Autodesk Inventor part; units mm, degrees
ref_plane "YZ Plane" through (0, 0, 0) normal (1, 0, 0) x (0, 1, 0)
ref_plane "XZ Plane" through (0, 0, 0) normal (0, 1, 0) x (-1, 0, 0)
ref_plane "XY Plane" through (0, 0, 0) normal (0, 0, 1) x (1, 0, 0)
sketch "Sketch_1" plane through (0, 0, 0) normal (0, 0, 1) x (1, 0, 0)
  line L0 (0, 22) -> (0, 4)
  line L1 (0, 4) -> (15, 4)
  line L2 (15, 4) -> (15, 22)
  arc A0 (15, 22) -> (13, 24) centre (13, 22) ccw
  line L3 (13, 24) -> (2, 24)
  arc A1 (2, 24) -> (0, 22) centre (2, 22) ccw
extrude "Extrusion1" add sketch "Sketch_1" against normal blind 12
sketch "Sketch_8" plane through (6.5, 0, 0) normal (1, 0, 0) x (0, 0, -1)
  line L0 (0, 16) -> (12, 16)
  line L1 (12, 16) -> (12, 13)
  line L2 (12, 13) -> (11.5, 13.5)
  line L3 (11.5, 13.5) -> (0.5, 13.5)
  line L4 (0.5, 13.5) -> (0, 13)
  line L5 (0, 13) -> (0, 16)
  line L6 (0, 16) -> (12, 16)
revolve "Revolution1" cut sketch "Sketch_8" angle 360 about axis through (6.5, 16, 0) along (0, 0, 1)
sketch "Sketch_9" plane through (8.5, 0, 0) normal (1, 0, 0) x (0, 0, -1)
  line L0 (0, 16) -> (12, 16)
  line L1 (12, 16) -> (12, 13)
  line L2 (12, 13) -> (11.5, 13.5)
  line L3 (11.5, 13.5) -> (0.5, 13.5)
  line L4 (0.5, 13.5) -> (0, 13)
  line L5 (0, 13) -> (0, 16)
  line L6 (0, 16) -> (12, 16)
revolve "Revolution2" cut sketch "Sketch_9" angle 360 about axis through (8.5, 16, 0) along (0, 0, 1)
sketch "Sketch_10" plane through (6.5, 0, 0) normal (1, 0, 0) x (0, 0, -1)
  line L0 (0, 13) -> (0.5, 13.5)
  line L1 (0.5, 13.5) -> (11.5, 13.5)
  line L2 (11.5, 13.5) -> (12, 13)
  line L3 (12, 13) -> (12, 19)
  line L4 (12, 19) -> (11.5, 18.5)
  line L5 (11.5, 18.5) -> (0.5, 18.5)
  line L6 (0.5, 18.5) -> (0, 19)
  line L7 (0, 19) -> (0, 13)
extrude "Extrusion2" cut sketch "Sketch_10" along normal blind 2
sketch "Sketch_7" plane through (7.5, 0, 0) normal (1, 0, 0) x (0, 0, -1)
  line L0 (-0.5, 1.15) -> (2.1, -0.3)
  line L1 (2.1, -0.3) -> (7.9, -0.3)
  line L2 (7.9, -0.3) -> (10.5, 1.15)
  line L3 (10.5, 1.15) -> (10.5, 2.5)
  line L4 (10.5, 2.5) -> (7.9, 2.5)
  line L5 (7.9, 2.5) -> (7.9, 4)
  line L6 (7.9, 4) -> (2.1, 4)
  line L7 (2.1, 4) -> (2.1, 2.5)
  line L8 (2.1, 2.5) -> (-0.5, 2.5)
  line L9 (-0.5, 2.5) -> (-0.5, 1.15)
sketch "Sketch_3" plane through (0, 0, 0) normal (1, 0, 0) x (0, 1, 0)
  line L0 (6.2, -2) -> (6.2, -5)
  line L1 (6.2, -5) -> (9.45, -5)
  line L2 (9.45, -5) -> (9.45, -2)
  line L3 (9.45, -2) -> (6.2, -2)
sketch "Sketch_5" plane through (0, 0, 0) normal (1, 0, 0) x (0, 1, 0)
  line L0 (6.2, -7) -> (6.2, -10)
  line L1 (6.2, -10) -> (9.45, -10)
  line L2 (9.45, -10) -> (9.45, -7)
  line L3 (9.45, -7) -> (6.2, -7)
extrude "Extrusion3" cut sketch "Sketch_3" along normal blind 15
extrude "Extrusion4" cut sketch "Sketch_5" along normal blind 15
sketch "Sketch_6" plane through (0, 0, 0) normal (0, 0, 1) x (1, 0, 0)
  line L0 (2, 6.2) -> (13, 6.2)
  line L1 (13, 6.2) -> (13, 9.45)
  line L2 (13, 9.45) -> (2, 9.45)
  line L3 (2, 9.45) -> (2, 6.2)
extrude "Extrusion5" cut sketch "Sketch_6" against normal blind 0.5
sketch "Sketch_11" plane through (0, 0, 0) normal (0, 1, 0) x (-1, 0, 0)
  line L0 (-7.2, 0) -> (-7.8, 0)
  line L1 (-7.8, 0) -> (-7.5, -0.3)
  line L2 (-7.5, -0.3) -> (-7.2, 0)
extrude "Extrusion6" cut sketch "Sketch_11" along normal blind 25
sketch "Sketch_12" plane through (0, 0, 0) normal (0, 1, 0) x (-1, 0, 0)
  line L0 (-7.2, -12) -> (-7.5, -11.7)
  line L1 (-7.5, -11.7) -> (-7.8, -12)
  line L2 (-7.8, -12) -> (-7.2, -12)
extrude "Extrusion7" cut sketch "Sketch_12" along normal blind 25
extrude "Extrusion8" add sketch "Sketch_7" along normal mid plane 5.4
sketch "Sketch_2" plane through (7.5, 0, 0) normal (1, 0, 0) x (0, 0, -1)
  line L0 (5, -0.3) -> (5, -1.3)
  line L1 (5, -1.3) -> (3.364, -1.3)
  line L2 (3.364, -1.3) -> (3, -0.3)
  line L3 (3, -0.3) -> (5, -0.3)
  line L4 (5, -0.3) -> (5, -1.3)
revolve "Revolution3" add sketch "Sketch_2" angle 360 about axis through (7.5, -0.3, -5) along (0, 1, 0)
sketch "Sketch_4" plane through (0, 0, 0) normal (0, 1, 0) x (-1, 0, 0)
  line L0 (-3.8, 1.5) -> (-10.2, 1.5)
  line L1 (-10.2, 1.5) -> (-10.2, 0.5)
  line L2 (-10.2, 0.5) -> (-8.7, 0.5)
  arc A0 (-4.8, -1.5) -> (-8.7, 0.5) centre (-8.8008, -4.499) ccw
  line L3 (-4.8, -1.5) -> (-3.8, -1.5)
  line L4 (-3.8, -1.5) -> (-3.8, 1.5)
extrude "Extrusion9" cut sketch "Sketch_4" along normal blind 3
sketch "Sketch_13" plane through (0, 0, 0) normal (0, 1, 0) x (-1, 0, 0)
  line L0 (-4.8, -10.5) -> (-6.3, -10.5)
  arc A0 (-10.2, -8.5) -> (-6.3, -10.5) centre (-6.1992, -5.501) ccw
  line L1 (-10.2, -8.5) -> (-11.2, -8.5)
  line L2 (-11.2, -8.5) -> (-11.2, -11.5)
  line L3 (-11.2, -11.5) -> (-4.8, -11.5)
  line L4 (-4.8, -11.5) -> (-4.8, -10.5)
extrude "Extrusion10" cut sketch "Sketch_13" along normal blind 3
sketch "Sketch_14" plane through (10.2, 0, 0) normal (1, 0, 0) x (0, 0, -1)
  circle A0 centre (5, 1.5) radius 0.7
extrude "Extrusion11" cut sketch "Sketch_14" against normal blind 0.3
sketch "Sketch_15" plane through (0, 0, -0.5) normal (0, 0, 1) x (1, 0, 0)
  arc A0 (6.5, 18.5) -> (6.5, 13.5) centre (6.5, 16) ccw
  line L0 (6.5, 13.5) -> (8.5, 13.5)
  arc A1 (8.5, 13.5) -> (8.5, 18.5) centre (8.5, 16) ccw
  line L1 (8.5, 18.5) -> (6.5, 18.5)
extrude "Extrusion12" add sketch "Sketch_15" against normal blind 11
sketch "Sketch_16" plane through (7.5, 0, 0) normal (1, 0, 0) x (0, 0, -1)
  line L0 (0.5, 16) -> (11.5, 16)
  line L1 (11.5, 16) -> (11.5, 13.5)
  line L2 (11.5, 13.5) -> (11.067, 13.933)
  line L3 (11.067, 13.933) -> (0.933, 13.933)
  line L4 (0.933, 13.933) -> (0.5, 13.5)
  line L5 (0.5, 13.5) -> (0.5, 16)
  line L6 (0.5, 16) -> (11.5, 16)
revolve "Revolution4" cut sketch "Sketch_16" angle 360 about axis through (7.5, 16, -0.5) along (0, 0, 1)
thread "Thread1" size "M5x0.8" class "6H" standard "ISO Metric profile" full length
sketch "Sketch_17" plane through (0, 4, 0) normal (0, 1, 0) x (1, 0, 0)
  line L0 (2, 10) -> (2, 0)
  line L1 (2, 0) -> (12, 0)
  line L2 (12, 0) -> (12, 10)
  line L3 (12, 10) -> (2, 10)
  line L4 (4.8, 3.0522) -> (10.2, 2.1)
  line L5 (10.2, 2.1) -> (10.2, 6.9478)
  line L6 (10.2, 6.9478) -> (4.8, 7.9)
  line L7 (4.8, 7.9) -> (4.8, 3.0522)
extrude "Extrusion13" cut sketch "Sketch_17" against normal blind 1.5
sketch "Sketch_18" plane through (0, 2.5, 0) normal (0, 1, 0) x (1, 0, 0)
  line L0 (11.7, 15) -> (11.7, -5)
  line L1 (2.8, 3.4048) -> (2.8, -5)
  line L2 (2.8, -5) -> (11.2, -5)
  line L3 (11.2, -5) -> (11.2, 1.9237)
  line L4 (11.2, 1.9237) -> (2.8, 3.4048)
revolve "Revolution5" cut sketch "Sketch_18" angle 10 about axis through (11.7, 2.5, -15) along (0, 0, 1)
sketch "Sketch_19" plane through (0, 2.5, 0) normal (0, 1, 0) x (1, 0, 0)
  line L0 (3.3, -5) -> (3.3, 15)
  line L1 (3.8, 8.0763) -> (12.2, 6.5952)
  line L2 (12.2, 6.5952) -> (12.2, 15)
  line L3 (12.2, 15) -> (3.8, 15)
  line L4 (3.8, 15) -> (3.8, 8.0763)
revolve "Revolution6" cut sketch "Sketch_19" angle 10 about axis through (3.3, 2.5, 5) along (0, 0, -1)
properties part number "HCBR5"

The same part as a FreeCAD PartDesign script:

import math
import FreeCAD as App
import Part
import Sketcher
Q = App.Units.Quantity


def add_polygon(sketch, points):
    """Adds a closed chain of lines whose ends are joined by coincident constraints."""
    first, n = sketch.GeometryCount, len(points)
    for a, b in zip(points, points[1:] + points[:1]):
        sketch.addGeometry(Part.LineSegment(App.Vector(*a, 0), App.Vector(*b, 0)), False)
    for i in range(n):
        sketch.addConstraint(Sketcher.Constraint("Coincident", first + i, 2, first + (i + 1) % n, 1))

doc = App.newDocument("Part")
body = doc.addObject("PartDesign::Body", "Body")

sketch1 = body.newObject("Sketcher::SketchObject", "Sketch")
sketch1.AttachmentSupport = (doc.getObject("XY_Plane"), [""])
sketch1.MapMode = "FlatFace"
sketch1.addGeometry(Part.ArcOfCircle(Part.Circle(App.Vector(2, 22, 0), App.Vector(0, 0, 1), 2), math.radians(90), math.radians(180)), False)
sketch1.addGeometry(Part.LineSegment(App.Vector(0, 22, 0), App.Vector(0, 4, 0)), False)
sketch1.addGeometry(Part.LineSegment(App.Vector(0, 4, 0), App.Vector(15, 4, 0)), False)
sketch1.addGeometry(Part.LineSegment(App.Vector(15, 4, 0), App.Vector(15, 22, 0)), False)
sketch1.addGeometry(Part.ArcOfCircle(Part.Circle(App.Vector(13, 22, 0), App.Vector(0, 0, 1), 2), math.radians(0), math.radians(90)), False)
sketch1.addGeometry(Part.LineSegment(App.Vector(13, 24, 0), App.Vector(2, 24, 0)), False)
sketch1.addConstraint(Sketcher.Constraint("Tangent", 0, 2, 1, 1))
sketch1.addConstraint(Sketcher.Constraint("Coincident", 1, 2, 2, 1))
sketch1.addConstraint(Sketcher.Constraint("Coincident", 2, 2, 3, 1))
sketch1.addConstraint(Sketcher.Constraint("Tangent", 3, 2, 4, 1))
sketch1.addConstraint(Sketcher.Constraint("Tangent", 4, 2, 5, 1))
sketch1.addConstraint(Sketcher.Constraint("Tangent", 5, 2, 0, 1))
sketch1.addConstraint(Sketcher.Constraint("Vertical", 1))
sketch1.addConstraint(Sketcher.Constraint("Horizontal", 2))
sketch1.addConstraint(Sketcher.Constraint("Vertical", 3))
sketch1.addConstraint(Sketcher.Constraint("Horizontal", 5))
sketch1.addConstraint(Sketcher.Constraint("Equal", 0, 4))
sketch1.addConstraint(Sketcher.Constraint("PointOnObject", 0, 2, -2))
sketch1.addConstraint(Sketcher.Constraint("Radius", 0, Q("2 mm")))
sketch1.addConstraint(Sketcher.Constraint("DistanceX", 2, 1, 2, 2, Q("15 mm")))
sketch1.addConstraint(Sketcher.Constraint("DistanceY", 1, 2, 1, 1, Q("18 mm")))
sketch1.addConstraint(Sketcher.Constraint("DistanceY", -1, 1, 0, 3, Q("22 mm")))
pad1 = body.newObject("PartDesign::Pad", "Pad")
pad1.Profile = sketch1
pad1.Length = 12
pad1.Reversed = True

sketch2 = body.newObject("Sketcher::SketchObject", "Sketch001")
sketch2.AttachmentSupport = (doc.getObject("YZ_Plane"), [""])
sketch2.MapMode = "FlatFace"
sketch2.AttachmentOffset = App.Placement(App.Vector(0, 0, 6.5), App.Rotation())
add_polygon(sketch2, [(16, -12), (16, 0), (13, 0), (13.5, -0.5), (13.5, -11.5), (13, -12)])
sketch2.addGeometry(Part.LineSegment(App.Vector(16, -12, 0), App.Vector(16, 0, 0)), True)
sketch2.addConstraint(Sketcher.Constraint("Vertical", 0))
sketch2.addConstraint(Sketcher.Constraint("Horizontal", 1))
sketch2.addConstraint(Sketcher.Constraint("Vertical", 3))
sketch2.addConstraint(Sketcher.Constraint("Horizontal", 5))
sketch2.addConstraint(Sketcher.Constraint("Vertical", 6))
sketch2.addConstraint(Sketcher.Constraint("Coincident", 6, 1, 5, 2))
sketch2.addConstraint(Sketcher.Constraint("PointOnObject", 0, 2, -1))
sketch2.addConstraint(Sketcher.Constraint("PointOnObject", 6, 2, -1))
sketch2.addConstraint(Sketcher.Constraint("Perpendicular", 2, 4))
sketch2.addConstraint(Sketcher.Constraint("Vertical", 1, 2, 4, 2))
sketch2.addConstraint(Sketcher.Constraint("Equal", 2, 4))
sketch2.addConstraint(Sketcher.Constraint("DistanceX", 1, 2, 1, 1, Q("3 mm")))
sketch2.addConstraint(Sketcher.Constraint("DistanceY", 0, 1, 0, 2, Q("12 mm")))
sketch2.addConstraint(Sketcher.Constraint("DistanceY", 3, 2, 3, 1, Q("11 mm")))
sketch2.addConstraint(Sketcher.Constraint("DistanceX", -1, 1, 0, 2, Q("16 mm")))
groove = body.newObject("PartDesign::Groove", "Groove")
groove.Profile = sketch2
groove.ReferenceAxis = (sketch2, ["Axis0"])
groove.Angle = 360

sketch3 = body.newObject("Sketcher::SketchObject", "Sketch002")
sketch3.AttachmentSupport = (doc.getObject("YZ_Plane"), [""])
sketch3.MapMode = "FlatFace"
sketch3.AttachmentOffset = App.Placement(App.Vector(0, 0, 8.5), App.Rotation())
add_polygon(sketch3, [(16, -12), (16, 0), (13, 0), (13.5, -0.5), (13.5, -11.5), (13, -12)])
sketch3.addGeometry(Part.LineSegment(App.Vector(16, -12, 0), App.Vector(16, 0, 0)), True)
sketch3.addConstraint(Sketcher.Constraint("Vertical", 0))
sketch3.addConstraint(Sketcher.Constraint("Horizontal", 1))
sketch3.addConstraint(Sketcher.Constraint("Vertical", 3))
sketch3.addConstraint(Sketcher.Constraint("Horizontal", 5))
sketch3.addConstraint(Sketcher.Constraint("Vertical", 6))
sketch3.addConstraint(Sketcher.Constraint("Coincident", 6, 1, 5, 2))
sketch3.addConstraint(Sketcher.Constraint("PointOnObject", 0, 2, -1))
sketch3.addConstraint(Sketcher.Constraint("PointOnObject", 6, 2, -1))
sketch3.addConstraint(Sketcher.Constraint("Perpendicular", 2, 4))
sketch3.addConstraint(Sketcher.Constraint("Vertical", 1, 2, 4, 2))
sketch3.addConstraint(Sketcher.Constraint("Equal", 2, 4))
sketch3.addConstraint(Sketcher.Constraint("DistanceX", 1, 2, 1, 1, Q("3 mm")))
sketch3.addConstraint(Sketcher.Constraint("DistanceY", 0, 1, 0, 2, Q("12 mm")))
sketch3.addConstraint(Sketcher.Constraint("DistanceY", 3, 2, 3, 1, Q("11 mm")))
sketch3.addConstraint(Sketcher.Constraint("DistanceX", -1, 1, 0, 2, Q("16 mm")))
groove2 = body.newObject("PartDesign::Groove", "Groove001")
groove2.Profile = sketch3
groove2.ReferenceAxis = (sketch3, ["Axis0"])
groove2.Angle = 360

sketch4 = body.newObject("Sketcher::SketchObject", "Sketch003")
sketch4.AttachmentSupport = (doc.getObject("YZ_Plane"), [""])
sketch4.MapMode = "FlatFace"
sketch4.AttachmentOffset = App.Placement(App.Vector(0, 0, 6.5), App.Rotation())
add_polygon(sketch4, [(19, 0), (13, 0), (13.5, -0.5), (13.5, -11.5), (13, -12), (19, -12), (18.5, -11.5), (18.5, -0.5)])
sketch4.addConstraint(Sketcher.Constraint("Horizontal", 0))
sketch4.addConstraint(Sketcher.Constraint("Vertical", 2))
sketch4.addConstraint(Sketcher.Constraint("Horizontal", 4))
sketch4.addConstraint(Sketcher.Constraint("Vertical", 6))
sketch4.addConstraint(Sketcher.Constraint("PointOnObject", 0, 2, -1))
sketch4.addConstraint(Sketcher.Constraint("Perpendicular", 1, 3))
sketch4.addConstraint(Sketcher.Constraint("Perpendicular", 3, 5))
sketch4.addConstraint(Sketcher.Constraint("Perpendicular", 5, 7))
sketch4.addConstraint(Sketcher.Constraint("Horizontal", 2, 2, 5, 2))
sketch4.addConstraint(Sketcher.Constraint("Horizontal", 1, 2, 6, 2))
sketch4.addConstraint(Sketcher.Constraint("Vertical", 0, 2, 3, 2))
sketch4.addConstraint(Sketcher.Constraint("Vertical", 4, 2, 7, 2))
sketch4.addConstraint(Sketcher.Constraint("DistanceX", 0, 2, 0, 1, Q("6 mm")))
sketch4.addConstraint(Sketcher.Constraint("DistanceY", 2, 2, 2, 1, Q("11 mm")))
sketch4.addConstraint(Sketcher.Constraint("DistanceX", -1, 1, 0, 2, Q("13 mm")))
sketch4.addConstraint(Sketcher.Constraint("DistanceY", 3, 2, -1, 1, Q("12 mm")))
pocket1 = body.newObject("PartDesign::Pocket", "Pocket")
pocket1.Profile = sketch4
pocket1.Length = 2
pocket1.Reversed = True

sketch5 = body.newObject("Sketcher::SketchObject", "Sketch004")
sketch5.AttachmentSupport = (doc.getObject("YZ_Plane"), [""])
sketch5.MapMode = "FlatFace"
add_polygon(sketch5, [(9.4, -2), (6.2, -2), (6.2, -5), (9.4, -5)])
sketch5.addConstraint(Sketcher.Constraint("Horizontal", 0))
sketch5.addConstraint(Sketcher.Constraint("Vertical", 1))
sketch5.addConstraint(Sketcher.Constraint("Horizontal", 2))
sketch5.addConstraint(Sketcher.Constraint("Vertical", 3))
sketch5.addConstraint(Sketcher.Constraint("DistanceY", 1, 2, 1, 1, Q("3 mm")))
sketch5.addConstraint(Sketcher.Constraint("DistanceY", 0, 2, -1, 1, Q("2 mm")))
sketch5.addConstraint(Sketcher.Constraint("DistanceX", 0, 2, 0, 1, Q("3.25 mm")))
sketch5.addConstraint(Sketcher.Constraint("DistanceX", -1, 1, 0, 2, Q("6.2 mm")))
pocket2 = body.newObject("PartDesign::Pocket", "Pocket001")
pocket2.Profile = sketch5
pocket2.Length = 15
pocket2.Reversed = True

sketch6 = body.newObject("Sketcher::SketchObject", "Sketch005")
sketch6.AttachmentSupport = (doc.getObject("YZ_Plane"), [""])
sketch6.MapMode = "FlatFace"
add_polygon(sketch6, [(9.4, -7), (6.2, -7), (6.2, -10), (9.4, -10)])
sketch6.addConstraint(Sketcher.Constraint("Horizontal", 0))
sketch6.addConstraint(Sketcher.Constraint("Vertical", 1))
sketch6.addConstraint(Sketcher.Constraint("Horizontal", 2))
sketch6.addConstraint(Sketcher.Constraint("Vertical", 3))
sketch6.addConstraint(Sketcher.Constraint("DistanceY", 1, 2, 1, 1, Q("3 mm")))
sketch6.addConstraint(Sketcher.Constraint("DistanceY", 0, 2, -1, 1, Q("7 mm")))
sketch6.addConstraint(Sketcher.Constraint("DistanceX", 0, 2, 0, 1, Q("3.25 mm")))
sketch6.addConstraint(Sketcher.Constraint("DistanceX", -1, 1, 0, 2, Q("6.2 mm")))
pocket3 = body.newObject("PartDesign::Pocket", "Pocket002")
pocket3.Profile = sketch6
pocket3.Length = 15
pocket3.Reversed = True

sketch7 = body.newObject("Sketcher::SketchObject", "Sketch006")
sketch7.AttachmentSupport = (doc.getObject("XY_Plane"), [""])
sketch7.MapMode = "FlatFace"
add_polygon(sketch7, [(2, 9.4), (2, 6.2), (13, 6.2), (13, 9.4)])
sketch7.addConstraint(Sketcher.Constraint("Vertical", 0))
sketch7.addConstraint(Sketcher.Constraint("Horizontal", 1))
sketch7.addConstraint(Sketcher.Constraint("Vertical", 2))
sketch7.addConstraint(Sketcher.Constraint("Horizontal", 3))
sketch7.addConstraint(Sketcher.Constraint("DistanceX", 1, 1, 1, 2, Q("11 mm")))
sketch7.addConstraint(Sketcher.Constraint("DistanceX", -1, 1, 0, 2, Q("2 mm")))
sketch7.addConstraint(Sketcher.Constraint("DistanceY", 0, 2, 0, 1, Q("3.25 mm")))
sketch7.addConstraint(Sketcher.Constraint("DistanceY", -1, 1, 0, 2, Q("6.2 mm")))
pocket4 = body.newObject("PartDesign::Pocket", "Pocket003")
pocket4.Profile = sketch7
pocket4.Length = 0.5

sketch8 = body.newObject("Sketcher::SketchObject", "Sketch007")
sketch8.AttachmentSupport = (doc.getObject("XZ_Plane"), [""])
sketch8.MapMode = "FlatFace"
add_polygon(sketch8, [(7.5, -0.3), (7.2, 0), (7.8, 0)])
sketch8.addConstraint(Sketcher.Constraint("Horizontal", 1))
sketch8.addConstraint(Sketcher.Constraint("PointOnObject", 0, 2, -1))
sketch8.addConstraint(Sketcher.Constraint("Perpendicular", 0, 2))
sketch8.addConstraint(Sketcher.Constraint("Equal", 0, 2))
sketch8.addConstraint(Sketcher.Constraint("DistanceX", 1, 1, 1, 2, Q("0.6 mm")))
sketch8.addConstraint(Sketcher.Constraint("DistanceX", -1, 1, 0, 2, Q("7.2 mm")))
pocket5 = body.newObject("PartDesign::Pocket", "Pocket004")
pocket5.Profile = sketch8
pocket5.Length = 25

sketch9 = body.newObject("Sketcher::SketchObject", "Sketch008")
sketch9.AttachmentSupport = (doc.getObject("XZ_Plane"), [""])
sketch9.MapMode = "FlatFace"
add_polygon(sketch9, [(7.8, -12), (7.2, -12), (7.5, -11.7)])
sketch9.addConstraint(Sketcher.Constraint("Horizontal", 0))
sketch9.addConstraint(Sketcher.Constraint("Perpendicular", 1, 2))
sketch9.addConstraint(Sketcher.Constraint("Equal", 1, 2))
sketch9.addConstraint(Sketcher.Constraint("DistanceX", 0, 2, 0, 1, Q("0.6 mm")))
sketch9.addConstraint(Sketcher.Constraint("DistanceY", 0, 2, -1, 1, Q("12 mm")))
sketch9.addConstraint(Sketcher.Constraint("DistanceX", -1, 1, 0, 2, Q("7.2 mm")))
pocket6 = body.newObject("PartDesign::Pocket", "Pocket005")
pocket6.Profile = sketch9
pocket6.Length = 25

sketch10 = body.newObject("Sketcher::SketchObject", "Sketch009")
sketch10.AttachmentSupport = (doc.getObject("YZ_Plane"), [""])
sketch10.MapMode = "FlatFace"
sketch10.AttachmentOffset = App.Placement(App.Vector(0, 0, 7.5), App.Rotation())
add_polygon(sketch10, [(2.5, 0.5), (1.1, 0.5), (-0.3, -2.1), (-0.3, -7.9), (1.1, -10.5), (2.5, -10.5), (2.5, -7.9), (4, -7.9), (4, -2.1), (2.5, -2.1)])
sketch10.addConstraint(Sketcher.Constraint("Horizontal", 0))
sketch10.addConstraint(Sketcher.Constraint("Vertical", 2))
sketch10.addConstraint(Sketcher.Constraint("Horizontal", 4))
sketch10.addConstraint(Sketcher.Constraint("Vertical", 5))
sketch10.addConstraint(Sketcher.Constraint("Horizontal", 6))
sketch10.addConstraint(Sketcher.Constraint("Vertical", 7))
sketch10.addConstraint(Sketcher.Constraint("Horizontal", 8))
sketch10.addConstraint(Sketcher.Constraint("Vertical", 9))
sketch10.addConstraint(Sketcher.Constraint("Horizontal", 2, 2, 5, 2))
sketch10.addConstraint(Sketcher.Constraint("Horizontal", 1, 2, 7, 2))
sketch10.addConstraint(Sketcher.Constraint("Vertical", 0, 2, 3, 2))
sketch10.addConstraint(Sketcher.Constraint("Vertical", 5, 2, 8, 2))
sketch10.addConstraint(Sketcher.Constraint("Equal", 5, 9))
sketch10.addConstraint(Sketcher.Constraint("DistanceX", 6, 1, 6, 2, Q("1.5 mm")))
sketch10.addConstraint(Sketcher.Constraint("DistanceY", 2, 2, 2, 1, Q("5.8 mm")))
sketch10.addConstraint(Sketcher.Constraint("DistanceY", 5, 1, 5, 2, Q("2.6 mm")))
sketch10.addConstraint(Sketcher.Constraint("DistanceX", -1, 1, 6, 2, Q("4 mm")))
sketch10.addConstraint(Sketcher.Constraint("DistanceX", 0, 2, 0, 1, Q("1.35 mm")))
sketch10.addConstraint(Sketcher.Constraint("DistanceY", -1, 1, 0, 2, Q("0.5 mm")))
sketch10.addConstraint(Sketcher.Constraint("DistanceX", 1, 2, -1, 1, Q("0.3 mm")))
pad2 = body.newObject("PartDesign::Pad", "Pad001")
pad2.Profile = sketch10
pad2.Length = 5.4
pad2.Midplane = True

sketch11 = body.newObject("Sketcher::SketchObject", "Sketch010")
sketch11.AttachmentSupport = (doc.getObject("YZ_Plane"), [""])
sketch11.MapMode = "FlatFace"
sketch11.AttachmentOffset = App.Placement(App.Vector(0, 0, 7.5), App.Rotation())
add_polygon(sketch11, [(-1.3, -5), (-0.3, -5), (-0.3, -3), (-1.3, -3.4)])
sketch11.addGeometry(Part.LineSegment(App.Vector(-1.3, -5, 0), App.Vector(-0.3, -5, 0)), True)
sketch11.addConstraint(Sketcher.Constraint("Horizontal", 0))
sketch11.addConstraint(Sketcher.Constraint("Vertical", 1))
sketch11.addConstraint(Sketcher.Constraint("Vertical", 3))
sketch11.addConstraint(Sketcher.Constraint("Horizontal", 4))
sketch11.addConstraint(Sketcher.Constraint("Coincident", 4, 1, 3, 2))
sketch11.addConstraint(Sketcher.Constraint("Vertical", 1, 2, 4, 2))
sketch11.addConstraint(Sketcher.Constraint("DistanceX", 0, 1, 0, 2, Q("1 mm")))
sketch11.addConstraint(Sketcher.Constraint("DistanceY", 1, 1, 1, 2, Q("2 mm")))
sketch11.addConstraint(Sketcher.Constraint("DistanceY", 0, 2, -1, 1, Q("5 mm")))
sketch11.addConstraint(Sketcher.Constraint("DistanceX", 0, 2, -1, 1, Q("0.3 mm")))
sketch11.addConstraint(Sketcher.Constraint("DistanceY", 3, 2, 3, 1, Q("1.636 mm")))
revolution = body.newObject("PartDesign::Revolution", "Revolution")
revolution.Profile = sketch11
revolution.ReferenceAxis = (sketch11, ["Axis0"])
revolution.Angle = 360

sketch12 = body.newObject("Sketcher::SketchObject", "Sketch011")
sketch12.AttachmentSupport = (doc.getObject("XZ_Plane"), [""])
sketch12.MapMode = "FlatFace"
sketch12.addGeometry(Part.LineSegment(App.Vector(3.8, -1.5, 0), App.Vector(3.8, 1.5, 0)), False)
sketch12.addGeometry(Part.LineSegment(App.Vector(3.8, 1.5, 0), App.Vector(10.2, 1.5, 0)), False)
sketch12.addGeometry(Part.LineSegment(App.Vector(10.2, 1.5, 0), App.Vector(10.2, 0.5, 0)), False)
sketch12.addGeometry(Part.LineSegment(App.Vector(10.2, 0.5, 0), App.Vector(8.7, 0.5, 0)), False)
sketch12.addGeometry(Part.ArcOfCircle(Part.Circle(App.Vector(8.8, -4.5, 0), App.Vector(0, 0, 1), 5), math.radians(91), math.radians(143)), False)
sketch12.addGeometry(Part.LineSegment(App.Vector(4.8, -1.5, 0), App.Vector(3.8, -1.5, 0)), False)
sketch12.addConstraint(Sketcher.Constraint("Coincident", 0, 2, 1, 1))
sketch12.addConstraint(Sketcher.Constraint("Coincident", 1, 2, 2, 1))
sketch12.addConstraint(Sketcher.Constraint("Coincident", 2, 2, 3, 1))
sketch12.addConstraint(Sketcher.Constraint("Coincident", 3, 2, 4, 1))
sketch12.addConstraint(Sketcher.Constraint("Coincident", 4, 2, 5, 1))
sketch12.addConstraint(Sketcher.Constraint("Coincident", 5, 2, 0, 1))
sketch12.addConstraint(Sketcher.Constraint("Vertical", 0))
sketch12.addConstraint(Sketcher.Constraint("Horizontal", 1))
sketch12.addConstraint(Sketcher.Constraint("Vertical", 2))
sketch12.addConstraint(Sketcher.Constraint("Horizontal", 3))
sketch12.addConstraint(Sketcher.Constraint("Horizontal", 5))
sketch12.addConstraint(Sketcher.Constraint("Equal", 5, 2))
sketch12.addConstraint(Sketcher.Constraint("Radius", 4, Q("5 mm")))
sketch12.addConstraint(Sketcher.Constraint("DistanceX", 5, 2, 5, 1, Q("1 mm")))
sketch12.addConstraint(Sketcher.Constraint("DistanceY", 0, 1, 0, 2, Q("3 mm")))
sketch12.addConstraint(Sketcher.Constraint("DistanceX", 1, 1, 1, 2, Q("6.4 mm")))
sketch12.addConstraint(Sketcher.Constraint("DistanceX", 3, 2, 3, 1, Q("1.5 mm")))
sketch12.addConstraint(Sketcher.Constraint("DistanceX", -1, 1, 0, 2, Q("3.8 mm")))
sketch12.addConstraint(Sketcher.Constraint("DistanceY", -1, 1, 0, 2, Q("1.5 mm")))
pocket7 = body.newObject("PartDesign::Pocket", "Pocket006")
pocket7.Profile = sketch12
pocket7.Length = 3

sketch13 = body.newObject("Sketcher::SketchObject", "Sketch012")
sketch13.AttachmentSupport = (doc.getObject("XZ_Plane"), [""])
sketch13.MapMode = "FlatFace"
sketch13.addGeometry(Part.LineSegment(App.Vector(4.8, -11.5, 0), App.Vector(4.8, -10.5, 0)), False)
sketch13.addGeometry(Part.LineSegment(App.Vector(4.8, -10.5, 0), App.Vector(6.3, -10.5, 0)), False)
sketch13.addGeometry(Part.ArcOfCircle(Part.Circle(App.Vector(6.2, -5.5, 0), App.Vector(0, 0, 1), 5), math.radians(-89), math.radians(-37)), False)
sketch13.addGeometry(Part.LineSegment(App.Vector(10.2, -8.5, 0), App.Vector(11.2, -8.5, 0)), False)
sketch13.addGeometry(Part.LineSegment(App.Vector(11.2, -8.5, 0), App.Vector(11.2, -11.5, 0)), False)
sketch13.addGeometry(Part.LineSegment(App.Vector(11.2, -11.5, 0), App.Vector(4.8, -11.5, 0)), False)
sketch13.addConstraint(Sketcher.Constraint("Coincident", 0, 2, 1, 1))
sketch13.addConstraint(Sketcher.Constraint("Coincident", 1, 2, 2, 1))
sketch13.addConstraint(Sketcher.Constraint("Coincident", 2, 2, 3, 1))
sketch13.addConstraint(Sketcher.Constraint("Coincident", 3, 2, 4, 1))
sketch13.addConstraint(Sketcher.Constraint("Coincident", 4, 2, 5, 1))
sketch13.addConstraint(Sketcher.Constraint("Coincident", 5, 2, 0, 1))
sketch13.addConstraint(Sketcher.Constraint("Vertical", 0))
sketch13.addConstraint(Sketcher.Constraint("Horizontal", 1))
sketch13.addConstraint(Sketcher.Constraint("Horizontal", 3))
sketch13.addConstraint(Sketcher.Constraint("Vertical", 4))
sketch13.addConstraint(Sketcher.Constraint("Horizontal", 5))
sketch13.addConstraint(Sketcher.Constraint("Equal", 3, 0))
sketch13.addConstraint(Sketcher.Constraint("Radius", 2, Q("5 mm")))
sketch13.addConstraint(Sketcher.Constraint("DistanceX", 3, 1, 3, 2, Q("1 mm")))
sketch13.addConstraint(Sketcher.Constraint("DistanceY", 4, 2, 4, 1, Q("3 mm")))
sketch13.addConstraint(Sketcher.Constraint("DistanceX", 1, 1, 1, 2, Q("1.5 mm")))
sketch13.addConstraint(Sketcher.Constraint("DistanceX", 5, 2, 5, 1, Q("6.4 mm")))
sketch13.addConstraint(Sketcher.Constraint("DistanceX", -1, 1, 0, 2, Q("4.8 mm")))
sketch13.addConstraint(Sketcher.Constraint("DistanceY", 0, 2, -1, 1, Q("10.5 mm")))
pocket8 = body.newObject("PartDesign::Pocket", "Pocket007")
pocket8.Profile = sketch13
pocket8.Length = 3

sketch14 = body.newObject("Sketcher::SketchObject", "Sketch013")
sketch14.AttachmentSupport = (doc.getObject("YZ_Plane"), [""])
sketch14.MapMode = "FlatFace"
sketch14.AttachmentOffset = App.Placement(App.Vector(0, 0, 10.2), App.Rotation())
sketch14.addGeometry(Part.Circle(App.Vector(1.5, -5, 0), App.Vector(0, 0, 1), 0.7), False)
sketch14.addConstraint(Sketcher.Constraint("Diameter", 0, Q("1.4 mm")))
sketch14.addConstraint(Sketcher.Constraint("DistanceY", 0, 3, -1, 1, Q("5 mm")))
sketch14.addConstraint(Sketcher.Constraint("DistanceX", -1, 1, 0, 3, Q("1.5 mm")))
pocket9 = body.newObject("PartDesign::Pocket", "Pocket008")
pocket9.Profile = sketch14
pocket9.Length = 0.3

sketch15 = body.newObject("Sketcher::SketchObject", "Sketch014")
sketch15.AttachmentSupport = (doc.getObject("XY_Plane"), [""])
sketch15.MapMode = "FlatFace"
sketch15.AttachmentOffset = App.Placement(App.Vector(0, 0, -0.5), App.Rotation())
sketch15.addGeometry(Part.LineSegment(App.Vector(8.5, 18.5, 0), App.Vector(6.5, 18.5, 0)), False)
sketch15.addGeometry(Part.ArcOfCircle(Part.Circle(App.Vector(6.5, 16, 0), App.Vector(0, 0, 1), 2.5), math.radians(90), math.radians(270)), False)
sketch15.addGeometry(Part.LineSegment(App.Vector(6.5, 13.5, 0), App.Vector(8.5, 13.5, 0)), False)
sketch15.addGeometry(Part.ArcOfCircle(Part.Circle(App.Vector(8.5, 16, 0), App.Vector(0, 0, 1), 2.5), math.radians(-90), math.radians(90)), False)
sketch15.addConstraint(Sketcher.Constraint("Tangent", 0, 2, 1, 1))
sketch15.addConstraint(Sketcher.Constraint("Tangent", 1, 2, 2, 1))
sketch15.addConstraint(Sketcher.Constraint("Tangent", 2, 2, 3, 1))
sketch15.addConstraint(Sketcher.Constraint("Tangent", 3, 2, 0, 1))
sketch15.addConstraint(Sketcher.Constraint("Horizontal", 0))
sketch15.addConstraint(Sketcher.Constraint("Horizontal", 2))
sketch15.addConstraint(Sketcher.Constraint("Radius", 1, Q("2.5 mm")))
sketch15.addConstraint(Sketcher.Constraint("DistanceX", 0, 2, 0, 1, Q("2 mm")))
sketch15.addConstraint(Sketcher.Constraint("DistanceY", -1, 1, 1, 3, Q("16 mm")))
sketch15.addConstraint(Sketcher.Constraint("DistanceX", -1, 1, 1, 3, Q("6.5 mm")))
pad3 = body.newObject("PartDesign::Pad", "Pad002")
pad3.Profile = sketch15
pad3.Length = 11
pad3.Reversed = True

sketch16 = body.newObject("Sketcher::SketchObject", "Sketch015")
sketch16.AttachmentSupport = (doc.getObject("YZ_Plane"), [""])
sketch16.MapMode = "FlatFace"
sketch16.AttachmentOffset = App.Placement(App.Vector(0, 0, 7.5), App.Rotation())
add_polygon(sketch16, [(16, -11.5), (16, -0.5), (13.5, -0.5), (13.9, -0.9), (13.9, -11.1), (13.5, -11.5)])
sketch16.addGeometry(Part.LineSegment(App.Vector(16, -11.5, 0), App.Vector(16, -0.5, 0)), True)
sketch16.addConstraint(Sketcher.Constraint("Vertical", 0))
sketch16.addConstraint(Sketcher.Constraint("Horizontal", 1))
sketch16.addConstraint(Sketcher.Constraint("Vertical", 3))
sketch16.addConstraint(Sketcher.Constraint("Horizontal", 5))
sketch16.addConstraint(Sketcher.Constraint("Vertical", 6))
sketch16.addConstraint(Sketcher.Constraint("Coincident", 6, 1, 5, 2))
sketch16.addConstraint(Sketcher.Constraint("Perpendicular", 2, 4))
sketch16.addConstraint(Sketcher.Constraint("Horizontal", 1, 2, 6, 2))
sketch16.addConstraint(Sketcher.Constraint("Vertical", 1, 2, 4, 2))
sketch16.addConstraint(Sketcher.Constraint("Equal", 2, 4))
sketch16.addConstraint(Sketcher.Constraint("DistanceY", 0, 1, 0, 2, Q("11 mm")))
sketch16.addConstraint(Sketcher.Constraint("DistanceX", 1, 2, 1, 1, Q("2.5 mm")))
sketch16.addConstraint(Sketcher.Constraint("DistanceX", -1, 1, 0, 2, Q("16 mm")))
sketch16.addConstraint(Sketcher.Constraint("DistanceY", 0, 2, -1, 1, Q("0.5 mm")))
sketch16.addConstraint(Sketcher.Constraint("DistanceY", 3, 2, 3, 1, Q("10.134 mm")))
groove3 = body.newObject("PartDesign::Groove", "Groove002")
groove3.Profile = sketch16
groove3.ReferenceAxis = (sketch16, ["Axis0"])
groove3.Angle = 360

sketch17 = body.newObject("Sketcher::SketchObject", "Sketch016")
sketch17.AttachmentSupport = (doc.getObject("XZ_Plane"), [""])
sketch17.MapMode = "FlatFace"
sketch17.AttachmentOffset = App.Placement(App.Vector(0, 0, -4), App.Rotation())
add_polygon(sketch17, [(12, -10), (2, -10), (2, 0), (12, 0)])
add_polygon(sketch17, [(10.2, -2.1), (4.8, -3.1), (4.8, -7.9), (10.2, -6.9)])
sketch17.addConstraint(Sketcher.Constraint("Horizontal", 0))
sketch17.addConstraint(Sketcher.Constraint("Vertical", 1))
sketch17.addConstraint(Sketcher.Constraint("Horizontal", 2))
sketch17.addConstraint(Sketcher.Constraint("Vertical", 3))
sketch17.addConstraint(Sketcher.Constraint("Vertical", 5))
sketch17.addConstraint(Sketcher.Constraint("Vertical", 7))
sketch17.addConstraint(Sketcher.Constraint("PointOnObject", 1, 2, -1))
sketch17.addConstraint(Sketcher.Constraint("Parallel", 4, 6))
sketch17.addConstraint(Sketcher.Constraint("Equal", 2, 1))
sketch17.addConstraint(Sketcher.Constraint("DistanceX", 0, 2, 0, 1, Q("10 mm")))
sketch17.addConstraint(Sketcher.Constraint("Angle", 4, Q("-169.9996 deg")))
sketch17.addConstraint(Sketcher.Constraint("DistanceX", -1, 1, 0, 2, Q("2 mm")))
sketch17.addConstraint(Sketcher.Constraint("DistanceX", -1, 1, 4, 2, Q("4.8 mm")))
sketch17.addConstraint(Sketcher.Constraint("DistanceY", 5, 2, -1, 1, Q("7.9 mm")))
sketch17.addConstraint(Sketcher.Constraint("DistanceX", -1, 1, 6, 2, Q("10.2 mm")))
sketch17.addConstraint(Sketcher.Constraint("DistanceY", 7, 2, -1, 1, Q("2.1 mm")))
pocket10 = body.newObject("PartDesign::Pocket", "Pocket009")
pocket10.Profile = sketch17
pocket10.Length = 1.5
pocket10.Reversed = True

sketch18 = body.newObject("Sketcher::SketchObject", "Sketch017")
sketch18.AttachmentSupport = (doc.getObject("XZ_Plane"), [""])
sketch18.MapMode = "FlatFace"
sketch18.AttachmentOffset = App.Placement(App.Vector(0, 0, -2.5), App.Rotation())
add_polygon(sketch18, [(11, -2), (3, -3), (3, 5), (11, 5)])
sketch18.addGeometry(Part.LineSegment(App.Vector(12, -3, 0), App.Vector(12, 5, 0)), True)
sketch18.addConstraint(Sketcher.Constraint("Vertical", 1))
sketch18.addConstraint(Sketcher.Constraint("Horizontal", 2))
sketch18.addConstraint(Sketcher.Constraint("Vertical", 3))
sketch18.addConstraint(Sketcher.Constraint("Vertical", 4))
sketch18.addConstraint(Sketcher.Constraint("Horizontal", 0, 2, 4, 1))
sketch18.addConstraint(Sketcher.Constraint("Horizontal", 2, 2, 4, 2))
sketch18.addConstraint(Sketcher.Constraint("Angle", 0, Q("-170.0003 deg")))
sketch18.addConstraint(Sketcher.Constraint("DistanceX", 2, 1, 2, 2, Q("8.4 mm")))
sketch18.addConstraint(Sketcher.Constraint("DistanceY", -1, 1, 1, 2, Q("5 mm")))
sketch18.addConstraint(Sketcher.Constraint("DistanceX", -1, 1, 0, 2, Q("2.8 mm")))
sketch18.addConstraint(Sketcher.Constraint("DistanceX", -1, 1, 4, 1, Q("11.7 mm")))
sketch18.addConstraint(Sketcher.Constraint("DistanceY", 1, 1, 1, 2, Q("8.4048 mm")))
groove4 = body.newObject("PartDesign::Groove", "Groove003")
groove4.Profile = sketch18
groove4.ReferenceAxis = (sketch18, ["Axis0"])
groove4.Angle = 10

sketch19 = body.newObject("Sketcher::SketchObject", "Sketch018")
sketch19.AttachmentSupport = (doc.getObject("XZ_Plane"), [""])
sketch19.MapMode = "FlatFace"
sketch19.AttachmentOffset = App.Placement(App.Vector(0, 0, -2.5), App.Rotation())
add_polygon(sketch19, [(4, -15), (4, -8), (12, -7), (12, -15)])
sketch19.addGeometry(Part.LineSegment(App.Vector(3, -7, 0), App.Vector(3, -15, 0)), True)
sketch19.addConstraint(Sketcher.Constraint("Vertical", 0))
sketch19.addConstraint(Sketcher.Constraint("Vertical", 2))
sketch19.addConstraint(Sketcher.Constraint("Horizontal", 3))
sketch19.addConstraint(Sketcher.Constraint("Vertical", 4))
sketch19.addConstraint(Sketcher.Constraint("Horizontal", 1, 2, 4, 1))
sketch19.addConstraint(Sketcher.Constraint("Horizontal", 3, 2, 4, 2))
sketch19.addConstraint(Sketcher.Constraint("Angle", 1, Q("9.9997 deg")))
sketch19.addConstraint(Sketcher.Constraint("DistanceX", 3, 2, 3, 1, Q("8.4 mm")))
sketch19.addConstraint(Sketcher.Constraint("DistanceY", 2, 2, -1, 1, Q("15 mm")))
sketch19.addConstraint(Sketcher.Constraint("DistanceX", -1, 1, 0, 2, Q("3.8 mm")))
sketch19.addConstraint(Sketcher.Constraint("DistanceX", -1, 1, 4, 1, Q("3.3 mm")))
sketch19.addConstraint(Sketcher.Constraint("DistanceY", 0, 1, 0, 2, Q("6.9237 mm")))
groove5 = body.newObject("PartDesign::Groove", "Groove004")
groove5.Profile = sketch19
groove5.ReferenceAxis = (sketch19, ["Axis0"])
groove5.Angle = 10

doc.recompute()
